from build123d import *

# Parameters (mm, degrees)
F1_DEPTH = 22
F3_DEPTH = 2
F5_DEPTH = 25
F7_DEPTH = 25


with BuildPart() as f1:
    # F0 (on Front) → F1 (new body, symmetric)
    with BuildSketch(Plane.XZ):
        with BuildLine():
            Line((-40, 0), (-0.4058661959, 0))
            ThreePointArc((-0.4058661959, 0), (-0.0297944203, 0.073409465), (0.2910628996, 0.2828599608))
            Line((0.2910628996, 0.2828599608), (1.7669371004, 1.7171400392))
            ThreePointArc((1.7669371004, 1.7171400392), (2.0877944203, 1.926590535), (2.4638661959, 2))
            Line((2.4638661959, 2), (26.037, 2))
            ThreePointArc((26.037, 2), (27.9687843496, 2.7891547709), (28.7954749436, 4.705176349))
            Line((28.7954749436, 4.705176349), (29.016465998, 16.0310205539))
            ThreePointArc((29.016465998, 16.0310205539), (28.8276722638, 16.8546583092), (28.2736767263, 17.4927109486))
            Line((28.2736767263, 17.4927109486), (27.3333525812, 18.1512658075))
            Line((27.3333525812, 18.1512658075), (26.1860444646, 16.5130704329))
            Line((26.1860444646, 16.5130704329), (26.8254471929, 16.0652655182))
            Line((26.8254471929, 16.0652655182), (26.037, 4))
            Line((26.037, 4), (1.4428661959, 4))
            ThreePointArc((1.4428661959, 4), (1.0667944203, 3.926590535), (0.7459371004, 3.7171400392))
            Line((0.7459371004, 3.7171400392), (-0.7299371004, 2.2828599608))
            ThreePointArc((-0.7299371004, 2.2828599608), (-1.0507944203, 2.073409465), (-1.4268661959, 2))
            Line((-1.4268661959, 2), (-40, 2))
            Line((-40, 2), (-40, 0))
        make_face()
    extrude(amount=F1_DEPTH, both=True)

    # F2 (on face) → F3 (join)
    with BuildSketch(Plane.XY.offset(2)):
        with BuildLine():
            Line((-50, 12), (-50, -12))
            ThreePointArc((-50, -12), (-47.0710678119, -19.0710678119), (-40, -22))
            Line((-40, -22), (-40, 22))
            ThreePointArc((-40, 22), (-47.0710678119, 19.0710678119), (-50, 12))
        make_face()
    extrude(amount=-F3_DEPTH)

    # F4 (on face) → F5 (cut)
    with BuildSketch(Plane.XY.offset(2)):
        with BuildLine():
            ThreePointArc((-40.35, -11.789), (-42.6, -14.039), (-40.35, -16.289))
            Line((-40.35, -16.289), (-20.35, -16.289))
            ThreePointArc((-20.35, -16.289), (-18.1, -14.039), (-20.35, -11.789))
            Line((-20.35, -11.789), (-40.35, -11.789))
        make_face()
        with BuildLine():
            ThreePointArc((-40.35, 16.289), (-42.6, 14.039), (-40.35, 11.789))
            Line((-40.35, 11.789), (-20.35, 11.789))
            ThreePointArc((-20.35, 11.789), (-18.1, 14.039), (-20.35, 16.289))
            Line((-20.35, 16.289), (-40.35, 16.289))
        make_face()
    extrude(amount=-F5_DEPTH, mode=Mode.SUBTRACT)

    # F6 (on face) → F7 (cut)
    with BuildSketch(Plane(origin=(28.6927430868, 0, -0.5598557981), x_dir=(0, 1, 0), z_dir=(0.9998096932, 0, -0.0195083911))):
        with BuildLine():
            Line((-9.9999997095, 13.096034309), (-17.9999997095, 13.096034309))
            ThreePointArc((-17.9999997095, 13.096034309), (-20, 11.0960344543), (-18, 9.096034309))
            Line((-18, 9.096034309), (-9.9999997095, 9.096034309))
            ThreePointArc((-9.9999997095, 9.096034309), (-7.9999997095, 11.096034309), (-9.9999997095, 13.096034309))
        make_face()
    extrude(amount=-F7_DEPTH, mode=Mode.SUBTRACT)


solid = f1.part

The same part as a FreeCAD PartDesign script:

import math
import FreeCAD as App
import Part
import Sketcher
from FreeCAD import Vector

doc = App.newDocument("Part")
params = doc.addObject("Spreadsheet::Sheet", "Params")
for row, (alias, value) in enumerate([
    ("sketch1_radius", "1 mm"),
    ("sketch1_length", "2 mm"),
    ("pad1_length", "44 mm"),
    ("sketch2_radius", "10 mm"),
    ("sketch2_height", "24 mm"),
    ("pad2_length", "2 mm"),
    ("sketch3_width", "20 mm"),
    ("sketch3_radius", "2.25 mm"),
    ("pocket1_length", "25 mm"),
    ("sketch4_radius", "2 mm"),
    ("sketch4_width", "8 mm"),
    ("pocket2_length", "25 mm"),
], start=1):
    params.set(f"A{row}", alias)
    params.set(f"B{row}", "=" + value)
    params.setAlias(f"B{row}", alias)

body = doc.addObject("PartDesign::Body", "Body")

# Sketch on XZ plane
sketch1 = body.newObject("Sketcher::SketchObject", "Sketch")
sketch1.AttachmentSupport = (doc.getObject("XZ_Plane"), [""])
sketch1.MapMode = "FlatFace"
sketch1.addGeometry([
    Part.LineSegment(Vector(-40, 0, 0), Vector(-0.405866, 0, 0)),  # 0
    Part.ArcOfCircle(Part.Circle(Vector(-0.405866, 1, 0), Vector(0, 0, 1), 1), math.radians(-90), math.radians(-45.818859)),  # 1
    Part.LineSegment(Vector(0.291063, 0.28286, 0), Vector(1.766937, 1.71714, 0)),  # 2
    Part.ArcOfCircle(Part.Circle(Vector(2.463866, 1, 0), Vector(0, 0, 1), 1), math.radians(90), math.radians(134.181141)),  # 3
    Part.LineSegment(Vector(2.463866, 2, 0), Vector(26.037, 2, 0)),  # 4
    Part.ArcOfCircle(Part.Circle(Vector(26.037, 4.759, 0), Vector(0, 0, 1), 2.759), math.radians(-90), math.radians(-1.117819)),  # 5
    Part.LineSegment(Vector(28.795475, 4.705176, 0), Vector(29.016466, 16.031021, 0)),  # 6
    Part.ArcOfCircle(Part.Circle(Vector(27.273798, 16.065024, 0), Vector(0, 0, 1), 1.743), math.radians(-1.117819), math.radians(54.994571)),  # 7
    Part.LineSegment(Vector(28.273677, 17.492711, 0), Vector(27.333353, 18.151266, 0)),  # 8
    Part.LineSegment(Vector(27.333353, 18.151266, 0), Vector(26.186044, 16.51307, 0)),  # 9
    Part.LineSegment(Vector(26.186044, 16.51307, 0), Vector(26.825447, 16.065266, 0)),  # 10
    Part.LineSegment(Vector(26.825447, 16.065266, 0), Vector(26.037, 4, 0)),  # 11
    Part.LineSegment(Vector(26.037, 4, 0), Vector(1.442866, 4, 0)),  # 12
    Part.ArcOfCircle(Part.Circle(Vector(1.442866, 3, 0), Vector(0, 0, 1), 1), math.radians(90), math.radians(134.181141)),  # 13
    Part.LineSegment(Vector(0.745937, 3.71714, 0), Vector(-0.729937, 2.28286, 0)),  # 14
    Part.ArcOfCircle(Part.Circle(Vector(-1.426866, 3, 0), Vector(0, 0, 1), 1), math.radians(-90), math.radians(-45.818859)),  # 15
    Part.LineSegment(Vector(-1.426866, 2, 0), Vector(-40, 2, 0)),  # 16
    Part.LineSegment(Vector(-40, 2, 0), Vector(-40, 0, 0)),  # 17
], False)
sketch1.addConstraint([
    Sketcher.Constraint("Tangent", 0, 2, 1, 1),
    Sketcher.Constraint("Tangent", 1, 2, 2, 1),
    Sketcher.Constraint("Tangent", 2, 2, 3, 2),
    Sketcher.Constraint("Tangent", 3, 1, 4, 1),
    Sketcher.Constraint("Tangent", 4, 2, 5, 1),
    Sketcher.Constraint("Tangent", 5, 2, 6, 1),
    Sketcher.Constraint("Tangent", 6, 2, 7, 1),
    Sketcher.Constraint("Tangent", 7, 2, 8, 1),
    Sketcher.Constraint("Coincident", 8, 2, 9, 1),
    Sketcher.Constraint("Coincident", 9, 2, 10, 1),
    Sketcher.Constraint("Coincident", 10, 2, 11, 1),
    Sketcher.Constraint("Coincident", 11, 2, 12, 1),
    Sketcher.Constraint("Tangent", 12, 2, 13, 1),
    Sketcher.Constraint("Tangent", 13, 2, 14, 1),
    Sketcher.Constraint("Tangent", 14, 2, 15, 2),
    Sketcher.Constraint("Tangent", 15, 1, 16, 1),
    Sketcher.Constraint("Coincident", 16, 2, 17, 1),
    Sketcher.Constraint("Coincident", 17, 2, 0, 1),
    Sketcher.Constraint("Horizontal", 0),
    Sketcher.Constraint("Horizontal", 4),
    Sketcher.Constraint("Horizontal", 12),
    Sketcher.Constraint("Horizontal", 16),
    Sketcher.Constraint("Vertical", 17),
    Sketcher.Constraint("Equal", 1, 3),
    Sketcher.Constraint("Equal", 3, 13),
    Sketcher.Constraint("Equal", 13, 15),
    Sketcher.Constraint("PointOnObject", 0, 2, -1),
    Sketcher.Constraint("Perpendicular", 8, 9),
    Sketcher.Constraint("Perpendicular", 9, 10),
    Sketcher.Constraint("Parallel", 2, 14),
    Sketcher.Constraint("Horizontal", 1, 3, 3, 3),
    Sketcher.Constraint("Horizontal", 13, 3, 15, 3),
    Sketcher.Constraint("Horizontal", 4, 2, 15, 1),
    Sketcher.Constraint("Vertical", 4, 2, 11, 2),
    Sketcher.Constraint("Radius", 1, 1.0),
    Sketcher.Constraint("Distance", 9, 2.0),
    Sketcher.Constraint("DistanceX", 16, 2, -1, 1, 40.0),
    Sketcher.Constraint("Radius", 5, 2.759),
    Sketcher.Constraint("Radius", 7, 1.743),
    Sketcher.Constraint("Distance", 2, 2.058),
    Sketcher.Constraint("Distance", 6, 11.328),
    Sketcher.Constraint("Distance", 8, 1.148),
    Sketcher.Constraint("Distance", 11, 12.091),
    Sketcher.Constraint("DistanceX", -1, 1, 5, 3, 26.037),
    Sketcher.Constraint("DistanceX", 13, 3, 3, 3, 1.021),
    Sketcher.Constraint("DistanceY", 10, 2, 8, 2, 2.086),
    Sketcher.Constraint("DistanceX", 3, 1, 6, 2, 26.5526),
    Sketcher.Constraint("DistanceX", 7, 2, 5, 2, 0.521798),
])
sketch1.setExpression("Constraints[34]", "Params.sketch1_radius")
sketch1.setExpression("Constraints[35]", "Params.sketch1_length")
pad1 = body.newObject("PartDesign::Pad", "Pad")
pad1.Profile = sketch1
pad1.setExpression("Length", "Params.pad1_length")
pad1.Midplane = True

# Sketch on XY plane
sketch2 = body.newObject("Sketcher::SketchObject", "Sketch001")
sketch2.AttachmentSupport = (doc.getObject("XY_Plane"), [""])
sketch2.MapMode = "FlatFace"
sketch2.AttachmentOffset = App.Placement(Vector(0, 0, 2), App.Rotation())
sketch2.addGeometry([
    Part.LineSegment(Vector(-50, 12, 0), Vector(-50, -12, 0)),
    Part.ArcOfCircle(Part.Circle(Vector(-40, -12, 0), Vector(0, 0, 1), 10), math.radians(180), math.radians(270)),
    Part.LineSegment(Vector(-40, -22, 0), Vector(-40, 22, 0)),
    Part.ArcOfCircle(Part.Circle(Vector(-40, 12, 0), Vector(0, 0, 1), 10), math.radians(90), math.radians(180)),
], False)
sketch2.addConstraint([
    Sketcher.Constraint("Tangent", 0, 2, 1, 1),
    Sketcher.Constraint("Coincident", 1, 2, 2, 1),
    Sketcher.Constraint("Coincident", 2, 2, 3, 1),
    Sketcher.Constraint("Tangent", 3, 2, 0, 1),
    Sketcher.Constraint("Vertical", 0),
    Sketcher.Constraint("Vertical", 2),
    Sketcher.Constraint("Equal", 1, 3),
    Sketcher.Constraint("Vertical", 3, 3, 1, 2),
    Sketcher.Constraint("Radius", 1, 10.0),
    Sketcher.Constraint("DistanceY", 0, 2, 0, 1, 24.0),
    Sketcher.Constraint("DistanceX", 1, 3, -1, 1, 40.0),
    Sketcher.Constraint("DistanceY", 1, 3, -1, 1, 12.0),
])
sketch2.setExpression("Constraints[8]", "Params.sketch2_radius")
sketch2.setExpression("Constraints[9]", "Params.sketch2_height")
pad2 = body.newObject("PartDesign::Pad", "Pad001")
pad2.Profile = sketch2
pad2.setExpression("Length", "Params.pad2_length")
pad2.Reversed = True

# Sketch on XY plane
sketch3 = body.newObject("Sketcher::SketchObject", "Sketch002")
sketch3.AttachmentSupport = (doc.getObject("XY_Plane"), [""])
sketch3.MapMode = "FlatFace"
sketch3.AttachmentOffset = App.Placement(Vector(0, 0, 2), App.Rotation())
sketch3.addGeometry([
    Part.ArcOfCircle(Part.Circle(Vector(-40.35, -14.039, 0), Vector(0, 0, 1), 2.25), math.radians(90), math.radians(270)),  # 0
    Part.LineSegment(Vector(-40.35, -16.289, 0), Vector(-20.35, -16.289, 0)),  # 1
    Part.ArcOfCircle(Part.Circle(Vector(-20.35, -14.039, 0), Vector(0, 0, 1), 2.25), math.radians(-90), math.radians(90)),  # 2
    Part.LineSegment(Vector(-20.35, -11.789, 0), Vector(-40.35, -11.789, 0)),  # 3
    Part.ArcOfCircle(Part.Circle(Vector(-40.35, 14.039, 0), Vector(0, 0, 1), 2.25), math.radians(90), math.radians(270)),  # 4
    Part.LineSegment(Vector(-40.35, 11.789, 0), Vector(-20.35, 11.789, 0)),  # 5
    Part.ArcOfCircle(Part.Circle(Vector(-20.35, 14.039, 0), Vector(0, 0, 1), 2.25), math.radians(-90), math.radians(90)),  # 6
    Part.LineSegment(Vector(-20.35, 16.289, 0), Vector(-40.35, 16.289, 0)),  # 7
], False)
sketch3.addConstraint([
    Sketcher.Constraint("Tangent", 0, 2, 1, 1),
    Sketcher.Constraint("Tangent", 1, 2, 2, 1),
    Sketcher.Constraint("Tangent", 2, 2, 3, 1),
    Sketcher.Constraint("Tangent", 3, 2, 0, 1),
    Sketcher.Constraint("Tangent", 4, 2, 5, 1),
    Sketcher.Constraint("Tangent", 5, 2, 6, 1),
    Sketcher.Constraint("Tangent", 6, 2, 7, 1),
    Sketcher.Constraint("Tangent", 7, 2, 4, 1),
    Sketcher.Constraint("Horizontal", 1),
    Sketcher.Constraint("Horizontal", 3),
    Sketcher.Constraint("Horizontal", 5),
    Sketcher.Constraint("Horizontal", 7),
    Sketcher.Constraint("Equal", 2, 4),
    Sketcher.Constraint("Symmetric", 0, 3, 4, 3, -1),
    Sketcher.Constraint("Vertical", 2, 3, 6, 3),
    Sketcher.Constraint("DistanceX", 1, 1, 1, 2, 20.0),
    Sketcher.Constraint("Radius", 0, 2.25),
    Sketcher.Constraint("DistanceX", 0, 3, -1, 1, 40.35),
    Sketcher.Constraint("DistanceY", 0, 3, -1, 1, 14.039),
])
sketch3.setExpression("Constraints[15]", "Params.sketch3_width")
sketch3.setExpression("Constraints[16]", "Params.sketch3_radius")
pocket1 = body.newObject("PartDesign::Pocket", "Pocket")
pocket1.Profile = sketch3
pocket1.setExpression("Length", "Params.pocket1_length")

# Sketch on an angled plane
sketch4 = body.newObject("Sketcher::SketchObject", "Sketch003")
sketch4.Placement = App.Placement(Vector(28.692743, 0, -0.559856), App.Rotation(Vector(0, 1, 0), Vector(0.019508391, 0, 0.999809693), Vector(0.999809693, 0, -0.019508391), "ZXY"))
sketch4.addGeometry([
    Part.LineSegment(Vector(-10, 13.096034, 0), Vector(-18, 13.096034, 0)),
    Part.ArcOfCircle(Part.Circle(Vector(-18, 11.096034, 0), Vector(0, 0, 1), 2), math.radians(89.999992), math.radians(270)),
    Part.LineSegment(Vector(-18, 9.096034, 0), Vector(-10, 9.096034, 0)),
    Part.ArcOfCircle(Part.Circle(Vector(-10, 11.096034, 0), Vector(0, 0, 1), 2), math.radians(-90), math.radians(90)),
], False)
sketch4.addConstraint([
    Sketcher.Constraint("Tangent", 0, 2, 1, 1),
    Sketcher.Constraint("Tangent", 1, 2, 2, 1),
    Sketcher.Constraint("Tangent", 2, 2, 3, 1),
    Sketcher.Constraint("Tangent", 3, 2, 0, 1),
    Sketcher.Constraint("Horizontal", 0),
    Sketcher.Constraint("Horizontal", 2),
    Sketcher.Constraint("Radius", 1, 2.0),
    Sketcher.Constraint("DistanceX", 0, 2, 0, 1, 8.0),
    Sketcher.Constraint("DistanceX", 1, 3, -1, 1, 18.0),
    Sketcher.Constraint("DistanceY", -1, 1, 1, 3, 11.096034),
])
sketch4.setExpression("Constraints[6]", "Params.sketch4_radius")
sketch4.setExpression("Constraints[7]", "Params.sketch4_width")
pocket2 = body.newObject("PartDesign::Pocket", "Pocket001")
pocket2.Profile = sketch4
pocket2.setExpression("Length", "Params.pocket2_length")

doc.recompute()
